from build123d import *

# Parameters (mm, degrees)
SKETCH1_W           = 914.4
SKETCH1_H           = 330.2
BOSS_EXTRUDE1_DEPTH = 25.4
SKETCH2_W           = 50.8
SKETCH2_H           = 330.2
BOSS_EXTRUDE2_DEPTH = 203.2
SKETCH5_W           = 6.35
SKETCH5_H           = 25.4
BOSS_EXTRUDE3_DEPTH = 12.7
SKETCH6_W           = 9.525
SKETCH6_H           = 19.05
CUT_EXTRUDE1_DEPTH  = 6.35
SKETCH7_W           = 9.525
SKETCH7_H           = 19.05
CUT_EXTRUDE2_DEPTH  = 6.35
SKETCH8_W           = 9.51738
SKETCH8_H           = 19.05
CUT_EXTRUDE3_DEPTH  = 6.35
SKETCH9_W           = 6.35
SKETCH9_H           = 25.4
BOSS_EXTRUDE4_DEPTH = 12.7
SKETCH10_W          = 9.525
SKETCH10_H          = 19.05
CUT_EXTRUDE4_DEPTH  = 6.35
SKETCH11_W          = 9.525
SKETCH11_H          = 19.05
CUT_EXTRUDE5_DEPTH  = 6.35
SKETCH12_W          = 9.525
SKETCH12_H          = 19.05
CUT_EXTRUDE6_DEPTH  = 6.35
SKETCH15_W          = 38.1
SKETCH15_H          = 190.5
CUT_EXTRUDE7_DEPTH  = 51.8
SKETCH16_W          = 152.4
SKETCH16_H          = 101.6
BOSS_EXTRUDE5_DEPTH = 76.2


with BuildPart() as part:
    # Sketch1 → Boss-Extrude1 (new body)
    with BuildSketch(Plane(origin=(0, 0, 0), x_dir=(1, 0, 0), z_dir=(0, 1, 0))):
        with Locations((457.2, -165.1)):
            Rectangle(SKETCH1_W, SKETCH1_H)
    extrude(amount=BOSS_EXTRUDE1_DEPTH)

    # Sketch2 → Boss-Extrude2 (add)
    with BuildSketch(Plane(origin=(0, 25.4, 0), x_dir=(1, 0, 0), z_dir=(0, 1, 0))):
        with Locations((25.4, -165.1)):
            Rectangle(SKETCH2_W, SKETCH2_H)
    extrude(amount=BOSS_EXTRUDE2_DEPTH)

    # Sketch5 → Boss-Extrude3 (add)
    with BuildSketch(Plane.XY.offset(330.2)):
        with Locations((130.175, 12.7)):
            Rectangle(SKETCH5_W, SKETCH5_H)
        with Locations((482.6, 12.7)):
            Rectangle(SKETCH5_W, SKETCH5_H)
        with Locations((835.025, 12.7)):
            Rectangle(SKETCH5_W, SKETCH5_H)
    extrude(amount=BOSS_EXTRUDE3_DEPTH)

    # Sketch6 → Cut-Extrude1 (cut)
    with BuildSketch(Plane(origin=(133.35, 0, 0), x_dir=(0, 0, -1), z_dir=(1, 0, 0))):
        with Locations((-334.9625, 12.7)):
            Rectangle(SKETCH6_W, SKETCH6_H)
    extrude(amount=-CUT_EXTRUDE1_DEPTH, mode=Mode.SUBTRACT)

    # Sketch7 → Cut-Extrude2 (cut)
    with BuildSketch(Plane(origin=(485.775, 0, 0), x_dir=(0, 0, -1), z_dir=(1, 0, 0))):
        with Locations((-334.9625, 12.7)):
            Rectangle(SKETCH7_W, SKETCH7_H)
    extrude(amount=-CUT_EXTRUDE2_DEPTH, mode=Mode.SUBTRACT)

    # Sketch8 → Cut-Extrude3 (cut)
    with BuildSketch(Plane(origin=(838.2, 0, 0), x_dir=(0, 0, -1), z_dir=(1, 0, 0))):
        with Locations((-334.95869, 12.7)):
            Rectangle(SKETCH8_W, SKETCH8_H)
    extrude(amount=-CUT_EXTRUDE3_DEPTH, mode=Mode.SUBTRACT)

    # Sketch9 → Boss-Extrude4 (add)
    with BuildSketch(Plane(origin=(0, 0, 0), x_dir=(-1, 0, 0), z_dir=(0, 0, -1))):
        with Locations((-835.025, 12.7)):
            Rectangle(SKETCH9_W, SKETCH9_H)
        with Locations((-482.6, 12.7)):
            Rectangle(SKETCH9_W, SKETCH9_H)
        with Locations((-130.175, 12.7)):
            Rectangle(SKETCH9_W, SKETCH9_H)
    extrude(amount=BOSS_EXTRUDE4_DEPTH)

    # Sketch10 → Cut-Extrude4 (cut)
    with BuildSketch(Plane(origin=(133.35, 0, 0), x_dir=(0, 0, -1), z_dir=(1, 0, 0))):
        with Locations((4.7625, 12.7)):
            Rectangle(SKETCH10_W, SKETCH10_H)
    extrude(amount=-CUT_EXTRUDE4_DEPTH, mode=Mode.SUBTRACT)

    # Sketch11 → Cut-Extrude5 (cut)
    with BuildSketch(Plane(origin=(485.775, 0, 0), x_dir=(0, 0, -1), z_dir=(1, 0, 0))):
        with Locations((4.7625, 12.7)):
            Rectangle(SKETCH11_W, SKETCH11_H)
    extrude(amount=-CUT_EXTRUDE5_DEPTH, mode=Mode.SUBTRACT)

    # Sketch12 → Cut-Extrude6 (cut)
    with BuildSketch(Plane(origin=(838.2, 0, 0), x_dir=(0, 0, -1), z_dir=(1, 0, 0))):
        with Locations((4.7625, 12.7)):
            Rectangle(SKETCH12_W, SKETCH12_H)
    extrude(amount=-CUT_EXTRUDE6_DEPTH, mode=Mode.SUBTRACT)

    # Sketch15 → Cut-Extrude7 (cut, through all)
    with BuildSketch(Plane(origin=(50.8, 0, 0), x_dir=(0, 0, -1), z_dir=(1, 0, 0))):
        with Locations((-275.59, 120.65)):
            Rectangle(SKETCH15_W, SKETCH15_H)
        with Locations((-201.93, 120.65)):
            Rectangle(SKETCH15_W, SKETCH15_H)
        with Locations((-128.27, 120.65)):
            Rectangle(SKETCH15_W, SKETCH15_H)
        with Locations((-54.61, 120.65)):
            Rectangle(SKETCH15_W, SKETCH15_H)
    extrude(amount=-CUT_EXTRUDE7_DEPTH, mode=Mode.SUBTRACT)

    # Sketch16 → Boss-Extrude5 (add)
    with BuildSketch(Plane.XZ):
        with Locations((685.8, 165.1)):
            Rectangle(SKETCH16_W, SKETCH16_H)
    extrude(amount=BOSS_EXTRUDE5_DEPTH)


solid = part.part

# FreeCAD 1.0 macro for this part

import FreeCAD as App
import Part
import Sketcher

V = App.Vector
Q = App.Units.Quantity

doc = App.newDocument("Part")
body = doc.addObject("PartDesign::Body", "Body")

sketch1 = body.newObject("Sketcher::SketchObject", "Sketch")
sketch1.AttachmentSupport = (doc.getObject("XZ_Plane"), [""])
sketch1.MapMode = "FlatFace"
sketch1.addGeometry([
    Part.LineSegment(V(0, 0, 0), V(0, 330.2, 0)),
    Part.LineSegment(V(0, 330.2, 0), V(914.4, 330.2, 0)),
    Part.LineSegment(V(914.4, 330.2, 0), V(914.4, 0, 0)),
    Part.LineSegment(V(914.4, 0, 0), V(0, 0, 0)),
], False)
sketch1.addConstraint([
    Sketcher.Constraint("Coincident", 0, 2, 1, 1),
    Sketcher.Constraint("Coincident", 1, 2, 2, 1),
    Sketcher.Constraint("Coincident", 2, 2, 3, 1),
    Sketcher.Constraint("Coincident", 3, 2, 0, 1),
    Sketcher.Constraint("Vertical", 0),
    Sketcher.Constraint("Horizontal", 1),
    Sketcher.Constraint("Vertical", 2),
    Sketcher.Constraint("Horizontal", 3),
    Sketcher.Constraint("Coincident", 3, 2, -1, 1),
    Sketcher.Constraint("DistanceX", 1, 1, 1, 2, Q("36 in")),
    Sketcher.Constraint("DistanceY", 0, 1, 0, 2, Q("13 in")),
])
pad1 = body.newObject("PartDesign::Pad", "Pad")
pad1.Profile = sketch1
pad1.Length = Q("1 in")
pad1.Reversed = True

sketch2 = body.newObject("Sketcher::SketchObject", "Sketch001")
sketch2.AttachmentSupport = (doc.getObject("XZ_Plane"), [""])
sketch2.MapMode = "FlatFace"
sketch2.AttachmentOffset = App.Placement(V(0, 0, -1 * 25.4), App.Rotation())
sketch2.addGeometry([
    Part.LineSegment(V(0, 0, 0), V(0, 330.2, 0)),
    Part.LineSegment(V(0, 330.2, 0), V(50.8, 330.2, 0)),
    Part.LineSegment(V(50.8, 330.2, 0), V(50.8, 0, 0)),
    Part.LineSegment(V(50.8, 0, 0), V(0, 0, 0)),
], False)
sketch2.addConstraint([
    Sketcher.Constraint("Coincident", 0, 2, 1, 1),
    Sketcher.Constraint("Coincident", 1, 2, 2, 1),
    Sketcher.Constraint("Coincident", 2, 2, 3, 1),
    Sketcher.Constraint("Coincident", 3, 2, 0, 1),
    Sketcher.Constraint("Vertical", 0),
    Sketcher.Constraint("Horizontal", 1),
    Sketcher.Constraint("Vertical", 2),
    Sketcher.Constraint("Horizontal", 3),
    Sketcher.Constraint("Coincident", 3, 2, -1, 1),
    Sketcher.Constraint("DistanceX", 1, 1, 1, 2, Q("2 in")),
    Sketcher.Constraint("DistanceY", 0, 1, 0, 2, Q("13 in")),
])
pad2 = body.newObject("PartDesign::Pad", "Pad001")
pad2.Profile = sketch2
pad2.Length = Q("8 in")
pad2.Reversed = True

sketch3 = body.newObject("Sketcher::SketchObject", "Sketch002")
sketch3.AttachmentSupport = (doc.getObject("XY_Plane"), [""])
sketch3.MapMode = "FlatFace"
sketch3.AttachmentOffset = App.Placement(V(0, 0, 13 * 25.4), App.Rotation())
sketch3.addGeometry([
    Part.LineSegment(V(127, 25.4, 0), V(127, 0, 0)),
    Part.LineSegment(V(127, 0, 0), V(133.35, 0, 0)),
    Part.LineSegment(V(133.35, 0, 0), V(133.35, 25.4, 0)),
    Part.LineSegment(V(133.35, 25.4, 0), V(127, 25.4, 0)),
    Part.LineSegment(V(479.425, 25.4, 0), V(479.425, 0, 0)),
    Part.LineSegment(V(479.425, 0, 0), V(485.775, 0, 0)),
    Part.LineSegment(V(485.775, 0, 0), V(485.775, 25.4, 0)),
    Part.LineSegment(V(485.775, 25.4, 0), V(479.425, 25.4, 0)),
    Part.LineSegment(V(831.85, 25.4, 0), V(831.85, 0, 0)),
    Part.LineSegment(V(831.85, 0, 0), V(838.2, 0, 0)),
    Part.LineSegment(V(838.2, 0, 0), V(838.2, 25.4, 0)),
    Part.LineSegment(V(838.2, 25.4, 0), V(831.85, 25.4, 0)),
], False)
sketch3.addConstraint([
    Sketcher.Constraint("Coincident", 0, 2, 1, 1),
    Sketcher.Constraint("Coincident", 1, 2, 2, 1),
    Sketcher.Constraint("Coincident", 2, 2, 3, 1),
    Sketcher.Constraint("Coincident", 3, 2, 0, 1),
    Sketcher.Constraint("Coincident", 4, 2, 5, 1),
    Sketcher.Constraint("Coincident", 5, 2, 6, 1),
    Sketcher.Constraint("Coincident", 6, 2, 7, 1),
    Sketcher.Constraint("Coincident", 7, 2, 4, 1),
    Sketcher.Constraint("Coincident", 8, 2, 9, 1),
    Sketcher.Constraint("Coincident", 9, 2, 10, 1),
    Sketcher.Constraint("Coincident", 10, 2, 11, 1),
    Sketcher.Constraint("Coincident", 11, 2, 8, 1),
    Sketcher.Constraint("Vertical", 0),
    Sketcher.Constraint("Horizontal", 1),
    Sketcher.Constraint("Vertical", 2),
    Sketcher.Constraint("Horizontal", 3),
    Sketcher.Constraint("Vertical", 4),
    Sketcher.Constraint("Horizontal", 5),
    Sketcher.Constraint("Vertical", 6),
    Sketcher.Constraint("Horizontal", 7),
    Sketcher.Constraint("Vertical", 8),
    Sketcher.Constraint("Horizontal", 9),
    Sketcher.Constraint("Vertical", 10),
    Sketcher.Constraint("Horizontal", 11),
    Sketcher.Constraint("PointOnObject", 0, 2, -1),
    Sketcher.Constraint("PointOnObject", 4, 2, -1),
    Sketcher.Constraint("PointOnObject", 8, 2, -1),
    Sketcher.Constraint("Horizontal", 3, 2, 6, 2),
    Sketcher.Constraint("Horizontal", 7, 2, 10, 2),
    Sketcher.Constraint("Equal", 3, 5),
    Sketcher.Constraint("Equal", 7, 9),
    Sketcher.Constraint("DistanceY", 0, 2, 0, 1, Q("1 in")),
    Sketcher.Constraint("DistanceX", -1, 1, 0, 2, Q("5 in")),
    Sketcher.Constraint("DistanceX", -1, 1, 9, 2, Q("33 in")),
    Sketcher.Constraint("DistanceX", 1, 1, 1, 2, Q("0.25 in")),
    Sketcher.Constraint("DistanceX", -1, 1, 4, 2, Q("18.875 in")),
])
pad3 = body.newObject("PartDesign::Pad", "Pad002")
pad3.Profile = sketch3
pad3.Length = Q("0.5 in")

sketch4 = body.newObject("Sketcher::SketchObject", "Sketch003")
sketch4.AttachmentSupport = (doc.getObject("YZ_Plane"), [""])
sketch4.MapMode = "FlatFace"
sketch4.AttachmentOffset = App.Placement(V(0, 0, 5.25 * 25.4), App.Rotation())
sketch4.addGeometry([
    Part.LineSegment(V(22.225, 339.725, 0), V(3.175, 339.725, 0)),
    Part.LineSegment(V(3.175, 339.725, 0), V(3.175, 330.2, 0)),
    Part.LineSegment(V(3.175, 330.2, 0), V(22.225, 330.2, 0)),
    Part.LineSegment(V(22.225, 330.2, 0), V(22.225, 339.725, 0)),
], False)
sketch4.addConstraint([
    Sketcher.Constraint("Coincident", 0, 2, 1, 1),
    Sketcher.Constraint("Coincident", 1, 2, 2, 1),
    Sketcher.Constraint("Coincident", 2, 2, 3, 1),
    Sketcher.Constraint("Coincident", 3, 2, 0, 1),
    Sketcher.Constraint("Horizontal", 0),
    Sketcher.Constraint("Vertical", 1),
    Sketcher.Constraint("Horizontal", 2),
    Sketcher.Constraint("Vertical", 3),
    Sketcher.Constraint("DistanceY", -1, 1, 1, 2, Q("13 in")),
    Sketcher.Constraint("DistanceX", 0, 2, 0, 1, Q("0.75 in")),
    Sketcher.Constraint("DistanceY", 1, 2, 1, 1, Q("0.375 in")),
    Sketcher.Constraint("DistanceX", -1, 1, 0, 2, Q("0.125 in")),
])
pocket1 = body.newObject("PartDesign::Pocket", "Pocket")
pocket1.Profile = sketch4
pocket1.Length = Q("0.25 in")

sketch5 = body.newObject("Sketcher::SketchObject", "Sketch004")
sketch5.AttachmentSupport = (doc.getObject("YZ_Plane"), [""])
sketch5.MapMode = "FlatFace"
sketch5.AttachmentOffset = App.Placement(V(0, 0, 19.125 * 25.4), App.Rotation())
sketch5.addGeometry([
    Part.LineSegment(V(22.225, 339.725, 0), V(3.175, 339.725, 0)),
    Part.LineSegment(V(3.175, 339.725, 0), V(3.175, 330.2, 0)),
    Part.LineSegment(V(3.175, 330.2, 0), V(22.225, 330.2, 0)),
    Part.LineSegment(V(22.225, 330.2, 0), V(22.225, 339.725, 0)),
], False)
sketch5.addConstraint([
    Sketcher.Constraint("Coincident", 0, 2, 1, 1),
    Sketcher.Constraint("Coincident", 1, 2, 2, 1),
    Sketcher.Constraint("Coincident", 2, 2, 3, 1),
    Sketcher.Constraint("Coincident", 3, 2, 0, 1),
    Sketcher.Constraint("Horizontal", 0),
    Sketcher.Constraint("Vertical", 1),
    Sketcher.Constraint("Horizontal", 2),
    Sketcher.Constraint("Vertical", 3),
    Sketcher.Constraint("DistanceY", -1, 1, 1, 2, Q("13 in")),
    Sketcher.Constraint("DistanceX", 0, 2, 0, 1, Q("0.75 in")),
    Sketcher.Constraint("DistanceY", 1, 2, 1, 1, Q("0.375 in")),
    Sketcher.Constraint("DistanceX", -1, 1, 0, 2, Q("0.125 in")),
])
pocket2 = body.newObject("PartDesign::Pocket", "Pocket001")
pocket2.Profile = sketch5
pocket2.Length = Q("0.25 in")

sketch6 = body.newObject("Sketcher::SketchObject", "Sketch005")
sketch6.AttachmentSupport = (doc.getObject("YZ_Plane"), [""])
sketch6.MapMode = "FlatFace"
sketch6.AttachmentOffset = App.Placement(V(0, 0, 33 * 25.4), App.Rotation())
sketch6.addGeometry([
    Part.LineSegment(V(22.225, 339.71738, 0), V(3.175, 339.71738, 0)),
    Part.LineSegment(V(3.175, 339.71738, 0), V(3.175, 330.2, 0)),
    Part.LineSegment(V(3.175, 330.2, 0), V(22.225, 330.2, 0)),
    Part.LineSegment(V(22.225, 330.2, 0), V(22.225, 339.71738, 0)),
], False)
sketch6.addConstraint([
    Sketcher.Constraint("Coincident", 0, 2, 1, 1),
    Sketcher.Constraint("Coincident", 1, 2, 2, 1),
    Sketcher.Constraint("Coincident", 2, 2, 3, 1),
    Sketcher.Constraint("Coincident", 3, 2, 0, 1),
    Sketcher.Constraint("Horizontal", 0),
    Sketcher.Constraint("Vertical", 1),
    Sketcher.Constraint("Horizontal", 2),
    Sketcher.Constraint("Vertical", 3),
    Sketcher.Constraint("DistanceY", -1, 1, 1, 2, Q("13 in")),
    Sketcher.Constraint("DistanceX", 0, 2, 0, 1, Q("0.75 in")),
    Sketcher.Constraint("DistanceY", 1, 2, 1, 1, Q("0.3747 in")),
    Sketcher.Constraint("DistanceX", -1, 1, 0, 2, Q("0.125 in")),
])
pocket3 = body.newObject("PartDesign::Pocket", "Pocket002")
pocket3.Profile = sketch6
pocket3.Length = Q("0.25 in")

sketch7 = body.newObject("Sketcher::SketchObject", "Sketch006")
sketch7.AttachmentSupport = (doc.getObject("XY_Plane"), [""])
sketch7.MapMode = "FlatFace"
sketch7.addGeometry([
    Part.LineSegment(V(838.2, 25.4, 0), V(838.2, 0, 0)),
    Part.LineSegment(V(838.2, 0, 0), V(831.85, 0, 0)),
    Part.LineSegment(V(831.85, 0, 0), V(831.85, 25.4, 0)),
    Part.LineSegment(V(831.85, 25.4, 0), V(838.2, 25.4, 0)),
    Part.LineSegment(V(485.775, 25.4, 0), V(485.775, 0, 0)),
    Part.LineSegment(V(485.775, 0, 0), V(479.425, 0, 0)),
    Part.LineSegment(V(479.425, 0, 0), V(479.425, 25.4, 0)),
    Part.LineSegment(V(479.425, 25.4, 0), V(485.775, 25.4, 0)),
    Part.LineSegment(V(133.35, 25.4, 0), V(133.35, 0, 0)),
    Part.LineSegment(V(133.35, 0, 0), V(127, 0, 0)),
    Part.LineSegment(V(127, 0, 0), V(127, 25.4, 0)),
    Part.LineSegment(V(127, 25.4, 0), V(133.35, 25.4, 0)),
], False)
sketch7.addConstraint([
    Sketcher.Constraint("Coincident", 0, 2, 1, 1),
    Sketcher.Constraint("Coincident", 1, 2, 2, 1),
    Sketcher.Constraint("Coincident", 2, 2, 3, 1),
    Sketcher.Constraint("Coincident", 3, 2, 0, 1),
    Sketcher.Constraint("Coincident", 4, 2, 5, 1),
    Sketcher.Constraint("Coincident", 5, 2, 6, 1),
    Sketcher.Constraint("Coincident", 6, 2, 7, 1),
    Sketcher.Constraint("Coincident", 7, 2, 4, 1),
    Sketcher.Constraint("Coincident", 8, 2, 9, 1),
    Sketcher.Constraint("Coincident", 9, 2, 10, 1),
    Sketcher.Constraint("Coincident", 10, 2, 11, 1),
    Sketcher.Constraint("Coincident", 11, 2, 8, 1),
    Sketcher.Constraint("Vertical", 0),
    Sketcher.Constraint("Horizontal", 1),
    Sketcher.Constraint("Vertical", 2),
    Sketcher.Constraint("Horizontal", 3),
    Sketcher.Constraint("Vertical", 4),
    Sketcher.Constraint("Horizontal", 5),
    Sketcher.Constraint("Vertical", 6),
    Sketcher.Constraint("Horizontal", 7),
    Sketcher.Constraint("Vertical", 8),
    Sketcher.Constraint("Horizontal", 9),
    Sketcher.Constraint("Vertical", 10),
    Sketcher.Constraint("Horizontal", 11),
    Sketcher.Constraint("PointOnObject", 0, 2, -1),
    Sketcher.Constraint("PointOnObject", 4, 2, -1),
    Sketcher.Constraint("PointOnObject", 8, 2, -1),
    Sketcher.Constraint("Horizontal", 3, 2, 6, 2),
    Sketcher.Constraint("Horizontal", 7, 2, 10, 2),
    Sketcher.Constraint("Equal", 3, 5),
    Sketcher.Constraint("Equal", 7, 9),
    Sketcher.Constraint("DistanceY", 0, 2, 0, 1, Q("1 in")),
    Sketcher.Constraint("DistanceX", -1, 1, 0, 2, Q("33 in")),
    Sketcher.Constraint("DistanceX", -1, 1, 9, 2, Q("5 in")),
    Sketcher.Constraint("DistanceX", 1, 2, 1, 1, Q("0.25 in")),
    Sketcher.Constraint("DistanceX", -1, 1, 4, 2, Q("19.125 in")),
])
pad4 = body.newObject("PartDesign::Pad", "Pad003")
pad4.Profile = sketch7
pad4.Length = Q("0.5 in")
pad4.Reversed = True

sketch8 = body.newObject("Sketcher::SketchObject", "Sketch007")
sketch8.AttachmentSupport = (doc.getObject("YZ_Plane"), [""])
sketch8.MapMode = "FlatFace"
sketch8.AttachmentOffset = App.Placement(V(0, 0, 5.25 * 25.4), App.Rotation())
sketch8.addGeometry([
    Part.LineSegment(V(22.225, 0, 0), V(3.175, 0, 0)),
    Part.LineSegment(V(3.175, 0, 0), V(3.175, -9.525, 0)),
    Part.LineSegment(V(3.175, -9.525, 0), V(22.225, -9.525, 0)),
    Part.LineSegment(V(22.225, -9.525, 0), V(22.225, 0, 0)),
], False)
sketch8.addConstraint([
    Sketcher.Constraint("Coincident", 0, 2, 1, 1),
    Sketcher.Constraint("Coincident", 1, 2, 2, 1),
    Sketcher.Constraint("Coincident", 2, 2, 3, 1),
    Sketcher.Constraint("Coincident", 3, 2, 0, 1),
    Sketcher.Constraint("Horizontal", 0),
    Sketcher.Constraint("Vertical", 1),
    Sketcher.Constraint("Horizontal", 2),
    Sketcher.Constraint("Vertical", 3),
    Sketcher.Constraint("PointOnObject", 0, 2, -1),
    Sketcher.Constraint("DistanceX", 0, 2, 0, 1, Q("0.75 in")),
    Sketcher.Constraint("DistanceY", 1, 2, 1, 1, Q("0.375 in")),
    Sketcher.Constraint("DistanceX", -1, 1, 0, 2, Q("0.125 in")),
])
pocket4 = body.newObject("PartDesign::Pocket", "Pocket003")
pocket4.Profile = sketch8
pocket4.Length = Q("0.25 in")

sketch9 = body.newObject("Sketcher::SketchObject", "Sketch008")
sketch9.AttachmentSupport = (doc.getObject("YZ_Plane"), [""])
sketch9.MapMode = "FlatFace"
sketch9.AttachmentOffset = App.Placement(V(0, 0, 19.125 * 25.4), App.Rotation())
sketch9.addGeometry([
    Part.LineSegment(V(22.225, 0, 0), V(3.175, 0, 0)),
    Part.LineSegment(V(3.175, 0, 0), V(3.175, -9.525, 0)),
    Part.LineSegment(V(3.175, -9.525, 0), V(22.225, -9.525, 0)),
    Part.LineSegment(V(22.225, -9.525, 0), V(22.225, 0, 0)),
], False)
sketch9.addConstraint([
    Sketcher.Constraint("Coincident", 0, 2, 1, 1),
    Sketcher.Constraint("Coincident", 1, 2, 2, 1),
    Sketcher.Constraint("Coincident", 2, 2, 3, 1),
    Sketcher.Constraint("Coincident", 3, 2, 0, 1),
    Sketcher.Constraint("Horizontal", 0),
    Sketcher.Constraint("Vertical", 1),
    Sketcher.Constraint("Horizontal", 2),
    Sketcher.Constraint("Vertical", 3),
    Sketcher.Constraint("PointOnObject", 0, 2, -1),
    Sketcher.Constraint("DistanceX", 0, 2, 0, 1, Q("0.75 in")),
    Sketcher.Constraint("DistanceY", 1, 2, 1, 1, Q("0.375 in")),
    Sketcher.Constraint("DistanceX", -1, 1, 0, 2, Q("0.125 in")),
])
pocket5 = body.newObject("PartDesign::Pocket", "Pocket004")
pocket5.Profile = sketch9
pocket5.Length = Q("0.25 in")

sketch10 = body.newObject("Sketcher::SketchObject", "Sketch009")
sketch10.AttachmentSupport = (doc.getObject("YZ_Plane"), [""])
sketch10.MapMode = "FlatFace"
sketch10.AttachmentOffset = App.Placement(V(0, 0, 33 * 25.4), App.Rotation())
sketch10.addGeometry([
    Part.LineSegment(V(22.225, 0, 0), V(3.175, 0, 0)),
    Part.LineSegment(V(3.175, 0, 0), V(3.175, -9.525, 0)),
    Part.LineSegment(V(3.175, -9.525, 0), V(22.225, -9.525, 0)),
    Part.LineSegment(V(22.225, -9.525, 0), V(22.225, 0, 0)),
], False)
sketch10.addConstraint([
    Sketcher.Constraint("Coincident", 0, 2, 1, 1),
    Sketcher.Constraint("Coincident", 1, 2, 2, 1),
    Sketcher.Constraint("Coincident", 2, 2, 3, 1),
    Sketcher.Constraint("Coincident", 3, 2, 0, 1),
    Sketcher.Constraint("Horizontal", 0),
    Sketcher.Constraint("Vertical", 1),
    Sketcher.Constraint("Horizontal", 2),
    Sketcher.Constraint("Vertical", 3),
    Sketcher.Constraint("PointOnObject", 0, 2, -1),
    Sketcher.Constraint("DistanceX", 0, 2, 0, 1, Q("0.75 in")),
    Sketcher.Constraint("DistanceY", 1, 2, 1, 1, Q("0.375 in")),
    Sketcher.Constraint("DistanceX", -1, 1, 0, 2, Q("0.125 in")),
])
pocket6 = body.newObject("PartDesign::Pocket", "Pocket005")
pocket6.Profile = sketch10
pocket6.Length = Q("0.25 in")

sketch11 = body.newObject("Sketcher::SketchObject", "Sketch010")
sketch11.AttachmentSupport = (doc.getObject("YZ_Plane"), [""])
sketch11.MapMode = "FlatFace"
sketch11.AttachmentOffset = App.Placement(V(0, 0, 2 * 25.4), App.Rotation())
sketch11.addGeometry([
    Part.LineSegment(V(215.9, 294.64, 0), V(25.4, 294.64, 0)),
    Part.LineSegment(V(25.4, 294.64, 0), V(25.4, 256.54, 0)),
    Part.LineSegment(V(25.4, 256.54, 0), V(215.9, 256.54, 0)),
    Part.LineSegment(V(215.9, 256.54, 0), V(215.9, 294.64, 0)),
    Part.LineSegment(V(215.9, 220.98, 0), V(25.4, 220.98, 0)),
    Part.LineSegment(V(25.4, 220.98, 0), V(25.4, 182.88, 0)),
    Part.LineSegment(V(25.4, 182.88, 0), V(215.9, 182.88, 0)),
    Part.LineSegment(V(215.9, 182.88, 0), V(215.9, 220.98, 0)),
    Part.LineSegment(V(215.9, 147.32, 0), V(25.4, 147.32, 0)),
    Part.LineSegment(V(25.4, 147.32, 0), V(25.4, 109.22, 0)),
    Part.LineSegment(V(25.4, 109.22, 0), V(215.9, 109.22, 0)),
    Part.LineSegment(V(215.9, 109.22, 0), V(215.9, 147.32, 0)),
    Part.LineSegment(V(215.9, 73.66, 0), V(25.4, 73.66, 0)),
    Part.LineSegment(V(25.4, 73.66, 0), V(25.4, 35.56, 0)),
    Part.LineSegment(V(25.4, 35.56, 0), V(215.9, 35.56, 0)),
    Part.LineSegment(V(215.9, 35.56, 0), V(215.9, 73.66, 0)),
], False)
sketch11.addConstraint([
    Sketcher.Constraint("Coincident", 0, 2, 1, 1),
    Sketcher.Constraint("Coincident", 1, 2, 2, 1),
    Sketcher.Constraint("Coincident", 2, 2, 3, 1),
    Sketcher.Constraint("Coincident", 3, 2, 0, 1),
    Sketcher.Constraint("Coincident", 4, 2, 5, 1),
    Sketcher.Constraint("Coincident", 5, 2, 6, 1),
    Sketcher.Constraint("Coincident", 6, 2, 7, 1),
    Sketcher.Constraint("Coincident", 7, 2, 4, 1),
    Sketcher.Constraint("Coincident", 8, 2, 9, 1),
    Sketcher.Constraint("Coincident", 9, 2, 10, 1),
    Sketcher.Constraint("Coincident", 10, 2, 11, 1),
    Sketcher.Constraint("Coincident", 11, 2, 8, 1),
    Sketcher.Constraint("Coincident", 12, 2, 13, 1),
    Sketcher.Constraint("Coincident", 13, 2, 14, 1),
    Sketcher.Constraint("Coincident", 14, 2, 15, 1),
    Sketcher.Constraint("Coincident", 15, 2, 12, 1),
    Sketcher.Constraint("Horizontal", 0),
    Sketcher.Constraint("Vertical", 1),
    Sketcher.Constraint("Horizontal", 2),
    Sketcher.Constraint("Vertical", 3),
    Sketcher.Constraint("Horizontal", 4),
    Sketcher.Constraint("Vertical", 5),
    Sketcher.Constraint("Horizontal", 6),
    Sketcher.Constraint("Vertical", 7),
    Sketcher.Constraint("Horizontal", 8),
    Sketcher.Constraint("Vertical", 9),
    Sketcher.Constraint("Horizontal", 10),
    Sketcher.Constraint("Vertical", 11),
    Sketcher.Constraint("Horizontal", 12),
    Sketcher.Constraint("Vertical", 13),
    Sketcher.Constraint("Horizontal", 14),
    Sketcher.Constraint("Vertical", 15),
    Sketcher.Constraint("Vertical", 1, 2, 4, 2),
    Sketcher.Constraint("Vertical", 3, 2, 6, 2),
    Sketcher.Constraint("Vertical", 5, 2, 8, 2),
    Sketcher.Constraint("Vertical", 7, 2, 10, 2),
    Sketcher.Constraint("Vertical", 9, 2, 12, 2),
    Sketcher.Constraint("Vertical", 11, 2, 14, 2),
    Sketcher.Constraint("Equal", 3, 5),
    Sketcher.Constraint("Equal", 7, 9),
    Sketcher.Constraint("Equal", 11, 13),
    Sketcher.Constraint("DistanceX", 0, 2, 0, 1, Q("7.5 in")),
    Sketcher.Constraint("DistanceY", 1, 2, 1, 1, Q("1.5 in")),
    Sketcher.Constraint("DistanceX", -1, 1, 0, 2, Q("1 in")),
    Sketcher.Constraint("DistanceY", -1, 1, 0, 2, Q("11.6 in")),
    Sketcher.Constraint("DistanceY", -1, 1, 4, 2, Q("8.7 in")),
    Sketcher.Constraint("DistanceY", -1, 1, 8, 2, Q("5.8 in")),
    Sketcher.Constraint("DistanceY", -1, 1, 12, 2, Q("2.9 in")),
])
pocket7 = body.newObject("PartDesign::Pocket", "Pocket006")
pocket7.Profile = sketch11
pocket7.Type = "ThroughAll"

sketch12 = body.newObject("Sketcher::SketchObject", "Sketch011")
sketch12.AttachmentSupport = (doc.getObject("XZ_Plane"), [""])
sketch12.MapMode = "FlatFace"
sketch12.addGeometry([
    Part.LineSegment(V(609.6, 215.9, 0), V(609.6, 114.3, 0)),
    Part.LineSegment(V(609.6, 114.3, 0), V(762, 114.3, 0)),
    Part.LineSegment(V(762, 114.3, 0), V(762, 215.9, 0)),
    Part.LineSegment(V(762, 215.9, 0), V(609.6, 215.9, 0)),
], False)
sketch12.addConstraint([
    Sketcher.Constraint("Coincident", 0, 2, 1, 1),
    Sketcher.Constraint("Coincident", 1, 2, 2, 1),
    Sketcher.Constraint("Coincident", 2, 2, 3, 1),
    Sketcher.Constraint("Coincident", 3, 2, 0, 1),
    Sketcher.Constraint("Vertical", 0),
    Sketcher.Constraint("Horizontal", 1),
    Sketcher.Constraint("Vertical", 2),
    Sketcher.Constraint("Horizontal", 3),
    Sketcher.Constraint("DistanceX", 1, 1, 1, 2, Q("6 in")),
    Sketcher.Constraint("DistanceY", 0, 2, 0, 1, Q("4 in")),
    Sketcher.Constraint("DistanceX", -1, 1, 0, 2, Q("24 in")),
    Sketcher.Constraint("DistanceY", -1, 1, 0, 2, Q("4.5 in")),
])
pad5 = body.newObject("PartDesign::Pad", "Pad004")
pad5.Profile = sketch12
pad5.Length = Q("3 in")

doc.recompute()
